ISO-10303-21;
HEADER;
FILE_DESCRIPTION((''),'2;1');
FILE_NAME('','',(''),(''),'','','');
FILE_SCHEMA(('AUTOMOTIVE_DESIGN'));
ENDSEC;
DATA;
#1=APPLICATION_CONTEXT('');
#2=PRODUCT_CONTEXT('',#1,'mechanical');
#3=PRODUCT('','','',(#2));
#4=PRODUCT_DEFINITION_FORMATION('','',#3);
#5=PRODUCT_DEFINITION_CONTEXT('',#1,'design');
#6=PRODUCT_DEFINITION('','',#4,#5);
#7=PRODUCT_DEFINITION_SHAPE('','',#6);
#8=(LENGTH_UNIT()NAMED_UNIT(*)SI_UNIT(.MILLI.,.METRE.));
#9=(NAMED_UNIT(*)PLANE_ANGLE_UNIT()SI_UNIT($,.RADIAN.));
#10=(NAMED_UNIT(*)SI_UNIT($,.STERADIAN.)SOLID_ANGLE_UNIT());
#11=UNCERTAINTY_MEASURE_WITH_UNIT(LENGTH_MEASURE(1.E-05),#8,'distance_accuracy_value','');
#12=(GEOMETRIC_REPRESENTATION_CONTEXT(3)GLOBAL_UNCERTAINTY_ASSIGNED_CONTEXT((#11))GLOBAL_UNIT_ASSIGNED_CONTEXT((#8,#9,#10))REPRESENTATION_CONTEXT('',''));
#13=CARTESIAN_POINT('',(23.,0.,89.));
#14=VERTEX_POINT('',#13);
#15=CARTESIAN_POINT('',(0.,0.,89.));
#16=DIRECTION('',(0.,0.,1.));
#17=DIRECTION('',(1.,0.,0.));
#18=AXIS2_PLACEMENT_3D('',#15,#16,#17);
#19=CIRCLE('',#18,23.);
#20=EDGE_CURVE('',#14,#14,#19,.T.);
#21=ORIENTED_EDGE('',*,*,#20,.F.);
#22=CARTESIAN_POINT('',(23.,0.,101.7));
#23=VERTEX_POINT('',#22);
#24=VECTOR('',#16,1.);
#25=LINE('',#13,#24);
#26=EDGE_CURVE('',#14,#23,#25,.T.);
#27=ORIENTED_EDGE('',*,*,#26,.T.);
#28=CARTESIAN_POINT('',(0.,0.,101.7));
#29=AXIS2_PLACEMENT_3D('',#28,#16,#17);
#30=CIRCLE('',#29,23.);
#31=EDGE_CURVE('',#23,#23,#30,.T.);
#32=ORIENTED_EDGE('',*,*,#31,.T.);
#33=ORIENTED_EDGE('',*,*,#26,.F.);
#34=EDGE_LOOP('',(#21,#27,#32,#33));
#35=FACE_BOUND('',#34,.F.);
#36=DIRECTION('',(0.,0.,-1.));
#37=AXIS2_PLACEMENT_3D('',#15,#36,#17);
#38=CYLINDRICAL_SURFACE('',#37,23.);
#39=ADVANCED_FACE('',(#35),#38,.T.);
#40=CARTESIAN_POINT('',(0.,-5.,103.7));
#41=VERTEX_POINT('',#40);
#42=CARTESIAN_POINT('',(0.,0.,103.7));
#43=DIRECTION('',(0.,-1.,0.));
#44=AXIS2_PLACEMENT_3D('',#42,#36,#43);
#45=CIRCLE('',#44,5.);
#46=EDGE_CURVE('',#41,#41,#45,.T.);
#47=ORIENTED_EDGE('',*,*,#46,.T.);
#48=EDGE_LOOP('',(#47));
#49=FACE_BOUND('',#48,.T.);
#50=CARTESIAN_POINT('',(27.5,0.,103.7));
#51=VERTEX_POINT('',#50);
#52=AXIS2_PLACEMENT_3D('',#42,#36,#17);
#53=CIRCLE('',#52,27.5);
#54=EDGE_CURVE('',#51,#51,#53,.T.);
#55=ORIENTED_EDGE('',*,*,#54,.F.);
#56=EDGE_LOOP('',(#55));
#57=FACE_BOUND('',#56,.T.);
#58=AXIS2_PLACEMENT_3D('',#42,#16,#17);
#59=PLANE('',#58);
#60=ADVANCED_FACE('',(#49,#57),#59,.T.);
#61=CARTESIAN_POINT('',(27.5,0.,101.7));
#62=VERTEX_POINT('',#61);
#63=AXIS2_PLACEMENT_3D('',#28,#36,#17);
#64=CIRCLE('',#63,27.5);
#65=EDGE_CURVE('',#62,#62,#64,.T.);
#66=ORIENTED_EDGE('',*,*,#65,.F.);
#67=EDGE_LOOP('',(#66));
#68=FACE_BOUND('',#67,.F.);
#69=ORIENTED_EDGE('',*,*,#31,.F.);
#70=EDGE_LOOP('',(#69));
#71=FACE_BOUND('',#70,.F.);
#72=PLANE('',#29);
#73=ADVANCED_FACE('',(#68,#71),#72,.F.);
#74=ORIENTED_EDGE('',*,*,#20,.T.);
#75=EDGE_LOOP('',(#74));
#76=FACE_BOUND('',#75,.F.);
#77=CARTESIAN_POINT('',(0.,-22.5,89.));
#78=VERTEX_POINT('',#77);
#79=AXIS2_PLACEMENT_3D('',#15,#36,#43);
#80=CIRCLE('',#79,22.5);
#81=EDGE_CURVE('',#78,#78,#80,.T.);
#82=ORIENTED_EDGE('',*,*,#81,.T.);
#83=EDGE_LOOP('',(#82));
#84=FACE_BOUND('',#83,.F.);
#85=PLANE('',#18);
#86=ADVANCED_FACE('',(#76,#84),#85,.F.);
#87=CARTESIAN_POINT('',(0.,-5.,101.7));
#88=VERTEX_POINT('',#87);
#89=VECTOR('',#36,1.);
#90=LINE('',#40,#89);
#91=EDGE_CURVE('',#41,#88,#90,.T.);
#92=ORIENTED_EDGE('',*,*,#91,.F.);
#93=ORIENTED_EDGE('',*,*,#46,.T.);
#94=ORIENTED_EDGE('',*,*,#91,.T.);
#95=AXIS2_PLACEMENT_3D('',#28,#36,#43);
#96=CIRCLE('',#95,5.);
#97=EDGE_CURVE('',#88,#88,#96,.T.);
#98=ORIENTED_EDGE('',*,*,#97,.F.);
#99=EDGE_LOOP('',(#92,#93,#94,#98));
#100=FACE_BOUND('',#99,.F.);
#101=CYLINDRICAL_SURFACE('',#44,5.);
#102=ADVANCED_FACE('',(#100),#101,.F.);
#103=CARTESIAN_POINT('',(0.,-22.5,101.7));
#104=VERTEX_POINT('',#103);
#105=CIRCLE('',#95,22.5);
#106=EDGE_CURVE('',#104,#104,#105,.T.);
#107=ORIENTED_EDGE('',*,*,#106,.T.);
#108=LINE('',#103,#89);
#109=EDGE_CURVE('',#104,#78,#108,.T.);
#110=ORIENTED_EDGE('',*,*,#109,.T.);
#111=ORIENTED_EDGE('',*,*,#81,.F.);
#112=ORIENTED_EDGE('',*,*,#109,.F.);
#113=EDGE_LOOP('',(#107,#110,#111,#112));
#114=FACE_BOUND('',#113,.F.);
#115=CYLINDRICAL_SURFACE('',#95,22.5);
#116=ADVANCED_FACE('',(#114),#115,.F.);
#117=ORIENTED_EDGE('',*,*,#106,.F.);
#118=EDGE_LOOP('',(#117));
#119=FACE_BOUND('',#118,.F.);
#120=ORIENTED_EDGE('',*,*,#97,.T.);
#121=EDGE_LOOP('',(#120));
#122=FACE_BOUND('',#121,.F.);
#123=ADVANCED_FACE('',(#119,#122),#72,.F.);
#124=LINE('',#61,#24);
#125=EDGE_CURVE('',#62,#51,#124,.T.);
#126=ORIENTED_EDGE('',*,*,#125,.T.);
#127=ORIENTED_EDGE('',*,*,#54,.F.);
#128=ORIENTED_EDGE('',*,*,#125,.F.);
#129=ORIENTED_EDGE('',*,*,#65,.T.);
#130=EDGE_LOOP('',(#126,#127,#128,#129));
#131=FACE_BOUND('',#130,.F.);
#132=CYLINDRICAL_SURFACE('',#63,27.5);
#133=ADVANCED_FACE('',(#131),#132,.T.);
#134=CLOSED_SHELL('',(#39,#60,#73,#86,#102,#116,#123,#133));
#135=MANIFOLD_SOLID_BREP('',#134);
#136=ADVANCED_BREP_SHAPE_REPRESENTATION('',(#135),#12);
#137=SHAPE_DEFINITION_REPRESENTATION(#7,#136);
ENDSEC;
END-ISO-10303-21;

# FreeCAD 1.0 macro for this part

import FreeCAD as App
import Part
import Sketcher
Q = App.Units.Quantity

doc = App.newDocument("Part")
params = doc.addObject("Spreadsheet::Sheet", "Params")
for row, (alias, value) in enumerate([
    ("sketch1_diameter", "46 mm"),
    ("pad1_length", "12.7 mm"),
    ("sketch2_diameter", "45 mm"),
    ("hole_diameter", "45 mm"),
    ("hole_depth", "12.8 mm"),
    ("sketch3_diameter", "55 mm"),
    ("pad2_length", "2 mm"),
    ("sketch4_diameter", "10 mm"),
    ("hole2_diameter", "10 mm"),
    ("hole2_depth", "8 mm"),
], start=1):
    params.set(f"A{row}", alias)
    params.set(f"B{row}", "=" + value)
    params.setAlias(f"B{row}", alias)

body = doc.addObject("PartDesign::Body", "Body")

sketch1 = doc.addObject("Sketcher::SketchObject", "Sketch")
body.addObject(sketch1)
sketch1.AttachmentSupport = (doc.XY_Plane, [""])
sketch1.MapMode = "FlatFace"
sketch1.AttachmentOffset = App.Placement(App.Vector(0, 0, 89), App.Rotation())
sketch1.addGeometry(Part.Circle(App.Vector(0, 0, 0), App.Vector(0, 0, 1), 23), False)
sketch1.addConstraint([
    Sketcher.Constraint("Coincident", 0, 3, -1, 1),
    Sketcher.Constraint("Diameter", 0, Q("46 mm")),
])
sketch1.setExpression("Constraints[1]", "Params.sketch1_diameter")
pad1 = doc.addObject("PartDesign::Pad", "Pad")
body.addObject(pad1)
pad1.Profile = sketch1
pad1.setExpression("Length", "Params.pad1_length")

sketch2 = doc.addObject("Sketcher::SketchObject", "Sketch001")
body.addObject(sketch2)
sketch2.AttachmentSupport = (doc.XY_Plane, [""])
sketch2.MapMode = "FlatFace"
sketch2.AttachmentOffset = App.Placement(App.Vector(0, 0, 101.7), App.Rotation())
sketch2.addGeometry(Part.Circle(App.Vector(0, 0, 0), App.Vector(0, 0, 1), 22.5), False)
sketch2.addConstraint([
    Sketcher.Constraint("Coincident", 0, 3, -1, 1),
    Sketcher.Constraint("Diameter", 0, Q("45 mm")),
])
sketch2.setExpression("Constraints[1]", "Params.sketch2_diameter")
doc.recompute()
hole = doc.addObject("PartDesign::Hole", "Hole")
body.addObject(hole)
hole.Profile = sketch2
hole.ThreadType = "None"
hole.setExpression("Diameter", "Params.hole_diameter")
hole.DepthType = "Dimension"
hole.setExpression("Depth", "Params.hole_depth")
hole.DrillPoint = "Flat"

sketch3 = doc.addObject("Sketcher::SketchObject", "Sketch002")
body.addObject(sketch3)
sketch3.AttachmentSupport = (doc.XY_Plane, [""])
sketch3.MapMode = "FlatFace"
sketch3.AttachmentOffset = App.Placement(App.Vector(0, 0, 101.7), App.Rotation())
sketch3.addGeometry(Part.Circle(App.Vector(0, 0, 0), App.Vector(0, 0, 1), 27.5), False)
sketch3.addConstraint([
    Sketcher.Constraint("Coincident", 0, 3, -1, 1),
    Sketcher.Constraint("Diameter", 0, Q("55 mm")),
])
sketch3.setExpression("Constraints[1]", "Params.sketch3_diameter")
pad2 = doc.addObject("PartDesign::Pad", "Pad001")
body.addObject(pad2)
pad2.Profile = sketch3
pad2.setExpression("Length", "Params.pad2_length")

sketch4 = doc.addObject("Sketcher::SketchObject", "Sketch003")
body.addObject(sketch4)
sketch4.AttachmentSupport = (doc.XY_Plane, [""])
sketch4.MapMode = "FlatFace"
sketch4.AttachmentOffset = App.Placement(App.Vector(0, 0, 103.7), App.Rotation())
sketch4.addGeometry(Part.Circle(App.Vector(0, 0, 0), App.Vector(0, 0, 1), 5), False)
sketch4.addConstraint([
    Sketcher.Constraint("Coincident", 0, 3, -1, 1),
    Sketcher.Constraint("Diameter", 0, Q("10 mm")),
])
sketch4.setExpression("Constraints[1]", "Params.sketch4_diameter")
doc.recompute()
hole2 = doc.addObject("PartDesign::Hole", "Hole001")
body.addObject(hole2)
hole2.Profile = sketch4
hole2.ThreadType = "None"
hole2.setExpression("Diameter", "Params.hole2_diameter")
hole2.DepthType = "Dimension"
hole2.setExpression("Depth", "Params.hole2_depth")
hole2.DrillPoint = "Angled"
hole2.DrillPointAngle = 118

doc.recompute()
